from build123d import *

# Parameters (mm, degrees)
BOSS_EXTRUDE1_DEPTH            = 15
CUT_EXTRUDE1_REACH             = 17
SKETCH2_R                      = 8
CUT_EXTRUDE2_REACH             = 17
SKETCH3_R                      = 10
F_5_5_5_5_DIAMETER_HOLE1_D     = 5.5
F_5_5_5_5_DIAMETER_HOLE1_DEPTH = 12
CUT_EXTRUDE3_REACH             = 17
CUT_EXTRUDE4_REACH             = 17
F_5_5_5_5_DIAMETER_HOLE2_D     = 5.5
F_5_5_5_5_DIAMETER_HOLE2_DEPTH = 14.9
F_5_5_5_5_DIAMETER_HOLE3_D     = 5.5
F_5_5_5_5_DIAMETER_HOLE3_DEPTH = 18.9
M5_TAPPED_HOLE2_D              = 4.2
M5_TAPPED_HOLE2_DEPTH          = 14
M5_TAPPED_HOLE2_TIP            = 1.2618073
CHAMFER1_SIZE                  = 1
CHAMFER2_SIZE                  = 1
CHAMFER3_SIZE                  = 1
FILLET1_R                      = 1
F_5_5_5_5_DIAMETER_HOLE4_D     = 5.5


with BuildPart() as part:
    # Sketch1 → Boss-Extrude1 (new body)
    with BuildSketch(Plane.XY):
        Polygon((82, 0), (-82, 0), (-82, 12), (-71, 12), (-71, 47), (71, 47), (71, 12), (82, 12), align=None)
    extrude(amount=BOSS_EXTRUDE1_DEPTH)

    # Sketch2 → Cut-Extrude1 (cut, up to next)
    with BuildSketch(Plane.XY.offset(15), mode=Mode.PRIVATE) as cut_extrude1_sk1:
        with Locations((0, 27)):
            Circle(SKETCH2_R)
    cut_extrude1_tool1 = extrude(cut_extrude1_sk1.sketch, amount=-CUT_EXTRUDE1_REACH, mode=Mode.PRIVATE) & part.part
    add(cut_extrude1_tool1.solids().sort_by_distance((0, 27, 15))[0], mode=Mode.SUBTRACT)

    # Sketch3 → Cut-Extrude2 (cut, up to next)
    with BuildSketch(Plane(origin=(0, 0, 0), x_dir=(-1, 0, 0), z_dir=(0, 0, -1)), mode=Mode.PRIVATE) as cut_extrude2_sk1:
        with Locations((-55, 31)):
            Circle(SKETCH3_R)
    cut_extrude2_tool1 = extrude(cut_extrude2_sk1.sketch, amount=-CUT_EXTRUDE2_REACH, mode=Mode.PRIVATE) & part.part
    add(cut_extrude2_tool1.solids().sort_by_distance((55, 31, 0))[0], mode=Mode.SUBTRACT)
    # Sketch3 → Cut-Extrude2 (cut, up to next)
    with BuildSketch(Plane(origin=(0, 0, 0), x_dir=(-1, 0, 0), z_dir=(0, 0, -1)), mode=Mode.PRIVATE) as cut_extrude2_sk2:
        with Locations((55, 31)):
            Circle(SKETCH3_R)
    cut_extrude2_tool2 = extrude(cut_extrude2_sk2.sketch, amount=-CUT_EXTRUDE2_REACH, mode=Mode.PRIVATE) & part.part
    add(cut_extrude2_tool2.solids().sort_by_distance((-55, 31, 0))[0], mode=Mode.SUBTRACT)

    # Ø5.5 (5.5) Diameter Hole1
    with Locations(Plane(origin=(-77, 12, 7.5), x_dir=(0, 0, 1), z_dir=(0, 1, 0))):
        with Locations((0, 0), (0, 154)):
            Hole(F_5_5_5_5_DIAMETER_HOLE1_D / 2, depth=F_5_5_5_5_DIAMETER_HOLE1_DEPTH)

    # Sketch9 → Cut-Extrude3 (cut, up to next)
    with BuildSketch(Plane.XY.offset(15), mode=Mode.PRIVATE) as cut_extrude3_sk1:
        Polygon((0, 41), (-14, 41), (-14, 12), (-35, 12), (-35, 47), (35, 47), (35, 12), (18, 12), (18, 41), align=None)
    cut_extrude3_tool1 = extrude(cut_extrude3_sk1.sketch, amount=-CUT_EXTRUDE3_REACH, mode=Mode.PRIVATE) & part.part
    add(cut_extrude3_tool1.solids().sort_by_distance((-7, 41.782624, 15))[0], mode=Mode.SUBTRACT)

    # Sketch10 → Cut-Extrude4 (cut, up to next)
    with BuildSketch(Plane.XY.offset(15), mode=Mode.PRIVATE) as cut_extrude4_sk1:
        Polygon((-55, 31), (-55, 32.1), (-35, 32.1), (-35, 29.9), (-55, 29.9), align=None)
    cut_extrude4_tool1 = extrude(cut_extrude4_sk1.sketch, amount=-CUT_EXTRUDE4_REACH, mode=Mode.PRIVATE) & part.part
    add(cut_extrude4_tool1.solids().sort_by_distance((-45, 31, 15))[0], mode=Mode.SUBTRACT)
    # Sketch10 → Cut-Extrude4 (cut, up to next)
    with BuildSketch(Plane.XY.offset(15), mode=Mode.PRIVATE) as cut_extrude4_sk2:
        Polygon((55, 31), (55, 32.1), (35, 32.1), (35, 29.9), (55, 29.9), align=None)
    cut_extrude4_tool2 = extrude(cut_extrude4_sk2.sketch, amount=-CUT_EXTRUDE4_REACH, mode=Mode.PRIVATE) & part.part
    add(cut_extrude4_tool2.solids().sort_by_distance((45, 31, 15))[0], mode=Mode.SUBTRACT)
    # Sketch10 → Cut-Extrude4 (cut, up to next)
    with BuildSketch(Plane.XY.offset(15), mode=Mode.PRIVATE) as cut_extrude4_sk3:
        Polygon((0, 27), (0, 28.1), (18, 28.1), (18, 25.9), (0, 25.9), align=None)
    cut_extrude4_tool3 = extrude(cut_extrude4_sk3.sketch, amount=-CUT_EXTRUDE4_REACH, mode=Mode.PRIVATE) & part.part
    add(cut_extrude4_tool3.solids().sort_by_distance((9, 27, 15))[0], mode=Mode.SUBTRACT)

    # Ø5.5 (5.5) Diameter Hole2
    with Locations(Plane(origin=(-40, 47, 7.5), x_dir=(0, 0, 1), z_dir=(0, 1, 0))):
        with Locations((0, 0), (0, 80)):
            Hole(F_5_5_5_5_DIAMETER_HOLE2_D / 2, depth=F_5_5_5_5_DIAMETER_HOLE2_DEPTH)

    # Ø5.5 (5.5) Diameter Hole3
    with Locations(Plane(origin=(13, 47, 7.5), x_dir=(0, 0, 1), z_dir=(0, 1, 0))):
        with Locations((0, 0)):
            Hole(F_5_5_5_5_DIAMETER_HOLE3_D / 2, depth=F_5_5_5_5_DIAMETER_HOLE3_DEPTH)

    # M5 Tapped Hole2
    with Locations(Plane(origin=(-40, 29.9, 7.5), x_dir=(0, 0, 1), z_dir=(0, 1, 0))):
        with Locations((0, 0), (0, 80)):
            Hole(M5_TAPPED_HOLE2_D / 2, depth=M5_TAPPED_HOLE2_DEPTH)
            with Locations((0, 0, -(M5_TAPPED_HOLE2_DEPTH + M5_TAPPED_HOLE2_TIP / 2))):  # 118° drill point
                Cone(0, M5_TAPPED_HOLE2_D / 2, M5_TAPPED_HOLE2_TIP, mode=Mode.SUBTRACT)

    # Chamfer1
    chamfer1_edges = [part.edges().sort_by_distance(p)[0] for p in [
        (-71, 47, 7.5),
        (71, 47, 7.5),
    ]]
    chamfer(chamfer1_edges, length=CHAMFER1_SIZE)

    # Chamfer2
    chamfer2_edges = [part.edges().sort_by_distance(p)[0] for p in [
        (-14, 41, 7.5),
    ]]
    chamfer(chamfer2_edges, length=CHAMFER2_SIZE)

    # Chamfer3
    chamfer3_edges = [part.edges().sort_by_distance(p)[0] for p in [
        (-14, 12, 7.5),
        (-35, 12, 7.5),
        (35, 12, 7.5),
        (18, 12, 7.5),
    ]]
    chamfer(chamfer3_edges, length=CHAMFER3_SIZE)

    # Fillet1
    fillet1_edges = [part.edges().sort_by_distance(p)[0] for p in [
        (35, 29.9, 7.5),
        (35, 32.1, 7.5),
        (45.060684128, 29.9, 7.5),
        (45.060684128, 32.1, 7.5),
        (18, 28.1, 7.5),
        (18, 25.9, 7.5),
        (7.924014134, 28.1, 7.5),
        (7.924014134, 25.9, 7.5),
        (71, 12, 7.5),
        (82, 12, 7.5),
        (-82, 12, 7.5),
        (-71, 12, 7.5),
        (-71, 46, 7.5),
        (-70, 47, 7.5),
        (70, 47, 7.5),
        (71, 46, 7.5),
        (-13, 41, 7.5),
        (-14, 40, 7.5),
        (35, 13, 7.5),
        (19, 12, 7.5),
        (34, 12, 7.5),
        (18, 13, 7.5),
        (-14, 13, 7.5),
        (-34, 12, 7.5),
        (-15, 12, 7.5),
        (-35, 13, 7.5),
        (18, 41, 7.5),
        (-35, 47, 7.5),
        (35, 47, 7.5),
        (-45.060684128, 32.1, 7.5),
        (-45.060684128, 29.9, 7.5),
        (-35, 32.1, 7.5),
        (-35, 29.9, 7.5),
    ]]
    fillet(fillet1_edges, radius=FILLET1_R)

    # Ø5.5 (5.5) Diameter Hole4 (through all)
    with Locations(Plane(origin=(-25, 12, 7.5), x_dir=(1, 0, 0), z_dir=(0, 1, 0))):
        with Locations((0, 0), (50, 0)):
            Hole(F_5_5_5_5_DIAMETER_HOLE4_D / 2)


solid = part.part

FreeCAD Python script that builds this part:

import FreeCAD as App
import Part
import Sketcher
from FreeCAD import Vector


def edges_at(feature, points):
    """Names of the edges that pass closest to the given points."""
    edges = feature.Shape.Edges
    near = lambda p: min(range(len(edges)), key=lambda i: edges[i].distToShape(Part.Vertex(*p))[0])
    return sorted({f"Edge{near(p) + 1}" for p in points})

doc = App.newDocument("Part")
body = doc.addObject("PartDesign::Body", "Body")

# Sketch on XY plane
sketch1 = body.newObject("Sketcher::SketchObject", "Sketch")
sketch1.AttachmentSupport = (doc.getObject("XY_Plane"), [""])
sketch1.MapMode = "FlatFace"
sketch1.addGeometry([
    Part.LineSegment(Vector(-82, 0, 0), Vector(82, 0, 0)),  # 0
    Part.LineSegment(Vector(82, 0, 0), Vector(82, 12, 0)),  # 1
    Part.LineSegment(Vector(82, 12, 0), Vector(71, 12, 0)),  # 2
    Part.LineSegment(Vector(71, 12, 0), Vector(71, 47, 0)),  # 3
    Part.LineSegment(Vector(71, 47, 0), Vector(-71, 47, 0)),  # 4
    Part.LineSegment(Vector(-71, 47, 0), Vector(-71, 12, 0)),  # 5
    Part.LineSegment(Vector(-71, 12, 0), Vector(-82, 12, 0)),  # 6
    Part.LineSegment(Vector(-82, 12, 0), Vector(-82, 0, 0)),  # 7
], False)
sketch1.addConstraint([
    Sketcher.Constraint("Coincident", 0, 2, 1, 1),
    Sketcher.Constraint("Coincident", 1, 2, 2, 1),
    Sketcher.Constraint("Coincident", 2, 2, 3, 1),
    Sketcher.Constraint("Coincident", 3, 2, 4, 1),
    Sketcher.Constraint("Coincident", 4, 2, 5, 1),
    Sketcher.Constraint("Coincident", 5, 2, 6, 1),
    Sketcher.Constraint("Coincident", 6, 2, 7, 1),
    Sketcher.Constraint("Coincident", 7, 2, 0, 1),
    Sketcher.Constraint("Horizontal", 0),
    Sketcher.Constraint("Vertical", 1),
    Sketcher.Constraint("Horizontal", 2),
    Sketcher.Constraint("Vertical", 3),
    Sketcher.Constraint("Horizontal", 4),
    Sketcher.Constraint("Vertical", 5),
    Sketcher.Constraint("Horizontal", 6),
    Sketcher.Constraint("Vertical", 7),
    Sketcher.Constraint("Symmetric", 0, 2, 7, 2, -1, 1),
    Sketcher.Constraint("Symmetric", 2, 2, 5, 2, -2),
    Sketcher.Constraint("DistanceX", 0, 1, 0, 2, 164.0),
    Sketcher.Constraint("DistanceX", 2, 2, 2, 1, 11.0),
    Sketcher.Constraint("DistanceY", 1, 1, 1, 2, 12.0),
    Sketcher.Constraint("DistanceY", 3, 1, 3, 2, 35.0),
])
pad1 = body.newObject("PartDesign::Pad", "Pad")
pad1.Profile = sketch1
pad1.Length = 15

# Sketch on XY plane
sketch2 = body.newObject("Sketcher::SketchObject", "Sketch001")
sketch2.AttachmentSupport = (doc.getObject("XY_Plane"), [""])
sketch2.MapMode = "FlatFace"
sketch2.AttachmentOffset = App.Placement(Vector(0, 0, 15), App.Rotation())
sketch2.addGeometry(Part.Circle(Vector(0, 27, 0), Vector(0, 0, 1), 8), False)
sketch2.addConstraint([
    Sketcher.Constraint("PointOnObject", 0, 3, -2),
    Sketcher.Constraint("Diameter", 0, 16.0),
    Sketcher.Constraint("DistanceY", -1, 1, 0, 3, 27.0),
])
pocket1 = body.newObject("PartDesign::Pocket", "Pocket")
pocket1.Profile = sketch2
pocket1.Type = "UpToFirst"

# Sketch on XY plane
sketch3 = body.newObject("Sketcher::SketchObject", "Sketch002")
sketch3.AttachmentSupport = (doc.getObject("XY_Plane"), [""])
sketch3.MapMode = "FlatFace"
sketch3.addGeometry(Part.Circle(Vector(55, 31, 0), Vector(0, 0, 1), 10), False)
sketch3.addConstraint([
    Sketcher.Constraint("Diameter", 0, 20.0),
    Sketcher.Constraint("DistanceX", -1, 1, 0, 3, 55.0),
    Sketcher.Constraint("DistanceY", -1, 1, 0, 3, 31.0),
])
pocket2 = body.newObject("PartDesign::Pocket", "Pocket001")
pocket2.Profile = sketch3
pocket2.Type = "UpToFirst"
pocket2.Reversed = True

# Sketch on XY plane
sketch4 = body.newObject("Sketcher::SketchObject", "Sketch003")
sketch4.AttachmentSupport = (doc.getObject("XY_Plane"), [""])
sketch4.MapMode = "FlatFace"
sketch4.addGeometry(Part.Circle(Vector(-55, 31, 0), Vector(0, 0, 1), 10), False)
sketch4.addConstraint([
    Sketcher.Constraint("Diameter", 0, 20.0),
    Sketcher.Constraint("DistanceX", 0, 3, -1, 1, 55.0),
    Sketcher.Constraint("DistanceY", -1, 1, 0, 3, 31.0),
])
pocket3 = body.newObject("PartDesign::Pocket", "Pocket002")
pocket3.Profile = sketch4
pocket3.Type = "UpToFirst"
pocket3.Reversed = True

# Sketch on XZ plane
sketch5 = body.newObject("Sketcher::SketchObject", "Sketch004")
sketch5.AttachmentSupport = (doc.getObject("XZ_Plane"), [""])
sketch5.MapMode = "FlatFace"
sketch5.AttachmentOffset = App.Placement(Vector(0, 0, -12), App.Rotation())
sketch5.addGeometry([
    Part.Circle(Vector(-77, 7.5, 0), Vector(0, 0, 1), 2.8),
    Part.Circle(Vector(77, 7.5, 0), Vector(0, 0, 1), 2.8),
], False)
sketch5.addConstraint([
    Sketcher.Constraint("Equal", 0, 1),
    Sketcher.Constraint("Symmetric", 0, 3, 1, 3, -2),
    Sketcher.Constraint("Diameter", 0, 5.5),
    Sketcher.Constraint("DistanceX", 0, 3, -1, 1, 77.0),
    Sketcher.Constraint("DistanceY", -1, 1, 0, 3, 7.5),
])
doc.recompute()
hole = body.newObject("PartDesign::Hole", "Hole")
hole.Profile = sketch5
hole.ThreadType = "None"
hole.Diameter = 5.5
hole.DepthType = "Dimension"
hole.Depth = 12
hole.DrillPoint = "Flat"
hole.Reversed = True

# Sketch on XY plane
sketch6 = body.newObject("Sketcher::SketchObject", "Sketch005")
sketch6.AttachmentSupport = (doc.getObject("XY_Plane"), [""])
sketch6.MapMode = "FlatFace"
sketch6.AttachmentOffset = App.Placement(Vector(0, 0, 15), App.Rotation())
sketch6.addGeometry([
    Part.LineSegment(Vector(-14, 41, 0), Vector(18, 41, 0)),  # 0
    Part.LineSegment(Vector(18, 41, 0), Vector(18, 12, 0)),  # 1
    Part.LineSegment(Vector(18, 12, 0), Vector(35, 12, 0)),  # 2
    Part.LineSegment(Vector(35, 12, 0), Vector(35, 47, 0)),  # 3
    Part.LineSegment(Vector(35, 47, 0), Vector(-35, 47, 0)),  # 4
    Part.LineSegment(Vector(-35, 47, 0), Vector(-35, 12, 0)),  # 5
    Part.LineSegment(Vector(-35, 12, 0), Vector(-14, 12, 0)),  # 6
    Part.LineSegment(Vector(-14, 12, 0), Vector(-14, 41, 0)),  # 7
], False)
sketch6.addConstraint([
    Sketcher.Constraint("Coincident", 0, 2, 1, 1),
    Sketcher.Constraint("Coincident", 1, 2, 2, 1),
    Sketcher.Constraint("Coincident", 2, 2, 3, 1),
    Sketcher.Constraint("Coincident", 3, 2, 4, 1),
    Sketcher.Constraint("Coincident", 4, 2, 5, 1),
    Sketcher.Constraint("Coincident", 5, 2, 6, 1),
    Sketcher.Constraint("Coincident", 6, 2, 7, 1),
    Sketcher.Constraint("Coincident", 7, 2, 0, 1),
    Sketcher.Constraint("Horizontal", 0),
    Sketcher.Constraint("Vertical", 1),
    Sketcher.Constraint("Horizontal", 2),
    Sketcher.Constraint("Vertical", 3),
    Sketcher.Constraint("Horizontal", 4),
    Sketcher.Constraint("Vertical", 5),
    Sketcher.Constraint("Horizontal", 6),
    Sketcher.Constraint("Vertical", 7),
    Sketcher.Constraint("Symmetric", 2, 2, 5, 2, -2),
    Sketcher.Constraint("DistanceX", 0, 1, 0, 2, 32.0),
    Sketcher.Constraint("DistanceX", 2, 1, 2, 2, 17.0),
    Sketcher.Constraint("DistanceX", 4, 2, 4, 1, 70.0),
    Sketcher.Constraint("DistanceY", 1, 2, 1, 1, 29.0),
    Sketcher.Constraint("DistanceY", 3, 1, 3, 2, 35.0),
    Sketcher.Constraint("DistanceY", -1, 1, 0, 2, 41.0),
])
pocket4 = body.newObject("PartDesign::Pocket", "Pocket003")
pocket4.Profile = sketch6
pocket4.Length = 15

# Sketch on XY plane
sketch7 = body.newObject("Sketcher::SketchObject", "Sketch006")
sketch7.AttachmentSupport = (doc.getObject("XY_Plane"), [""])
sketch7.MapMode = "FlatFace"
sketch7.AttachmentOffset = App.Placement(Vector(0, 0, 15), App.Rotation())
sketch7.addGeometry([
    Part.LineSegment(Vector(-55, 32.1, 0), Vector(-55, 29.9, 0)),
    Part.LineSegment(Vector(-55, 29.9, 0), Vector(-35, 29.9, 0)),
    Part.LineSegment(Vector(-35, 29.9, 0), Vector(-35, 32.1, 0)),
    Part.LineSegment(Vector(-35, 32.1, 0), Vector(-55, 32.1, 0)),
], False)
sketch7.addConstraint([
    Sketcher.Constraint("Coincident", 0, 2, 1, 1),
    Sketcher.Constraint("Coincident", 1, 2, 2, 1),
    Sketcher.Constraint("Coincident", 2, 2, 3, 1),
    Sketcher.Constraint("Coincident", 3, 2, 0, 1),
    Sketcher.Constraint("Vertical", 0),
    Sketcher.Constraint("Horizontal", 1),
    Sketcher.Constraint("Vertical", 2),
    Sketcher.Constraint("Horizontal", 3),
    Sketcher.Constraint("DistanceX", 1, 1, 1, 2, 20.0),
    Sketcher.Constraint("DistanceY", 0, 2, 0, 1, 2.2),
    Sketcher.Constraint("DistanceX", 0, 2, -1, 1, 55.0),
    Sketcher.Constraint("DistanceY", -1, 1, 0, 2, 29.9),
])
pocket5 = body.newObject("PartDesign::Pocket", "Pocket004")
pocket5.Profile = sketch7
pocket5.Type = "UpToFirst"

# Sketch on XY plane
sketch8 = body.newObject("Sketcher::SketchObject", "Sketch007")
sketch8.AttachmentSupport = (doc.getObject("XY_Plane"), [""])
sketch8.MapMode = "FlatFace"
sketch8.AttachmentOffset = App.Placement(Vector(0, 0, 15), App.Rotation())
sketch8.addGeometry([
    Part.LineSegment(Vector(55, 32.1, 0), Vector(35, 32.1, 0)),
    Part.LineSegment(Vector(35, 32.1, 0), Vector(35, 29.9, 0)),
    Part.LineSegment(Vector(35, 29.9, 0), Vector(55, 29.9, 0)),
    Part.LineSegment(Vector(55, 29.9, 0), Vector(55, 32.1, 0)),
], False)
sketch8.addConstraint([
    Sketcher.Constraint("Coincident", 0, 2, 1, 1),
    Sketcher.Constraint("Coincident", 1, 2, 2, 1),
    Sketcher.Constraint("Coincident", 2, 2, 3, 1),
    Sketcher.Constraint("Coincident", 3, 2, 0, 1),
    Sketcher.Constraint("Horizontal", 0),
    Sketcher.Constraint("Vertical", 1),
    Sketcher.Constraint("Horizontal", 2),
    Sketcher.Constraint("Vertical", 3),
    Sketcher.Constraint("DistanceX", 0, 2, 0, 1, 20.0),
    Sketcher.Constraint("DistanceY", 1, 2, 1, 1, 2.2),
    Sketcher.Constraint("DistanceX", -1, 1, 0, 2, 35.0),
    Sketcher.Constraint("DistanceY", -1, 1, 0, 2, 32.1),
])
pocket6 = body.newObject("PartDesign::Pocket", "Pocket005")
pocket6.Profile = sketch8
pocket6.Type = "UpToFirst"

# Sketch on XY plane
sketch9 = body.newObject("Sketcher::SketchObject", "Sketch008")
sketch9.AttachmentSupport = (doc.getObject("XY_Plane"), [""])
sketch9.MapMode = "FlatFace"
sketch9.AttachmentOffset = App.Placement(Vector(0, 0, 15), App.Rotation())
sketch9.addGeometry([
    Part.LineSegment(Vector(0, 28.1, 0), Vector(0, 25.9, 0)),
    Part.LineSegment(Vector(0, 25.9, 0), Vector(18, 25.9, 0)),
    Part.LineSegment(Vector(18, 25.9, 0), Vector(18, 28.1, 0)),
    Part.LineSegment(Vector(18, 28.1, 0), Vector(0, 28.1, 0)),
], False)
sketch9.addConstraint([
    Sketcher.Constraint("Coincident", 0, 2, 1, 1),
    Sketcher.Constraint("Coincident", 1, 2, 2, 1),
    Sketcher.Constraint("Coincident", 2, 2, 3, 1),
    Sketcher.Constraint("Coincident", 3, 2, 0, 1),
    Sketcher.Constraint("Vertical", 0),
    Sketcher.Constraint("Horizontal", 1),
    Sketcher.Constraint("Vertical", 2),
    Sketcher.Constraint("Horizontal", 3),
    Sketcher.Constraint("PointOnObject", 0, 2, -2),
    Sketcher.Constraint("DistanceX", 1, 1, 1, 2, 18.0),
    Sketcher.Constraint("DistanceY", 0, 2, 0, 1, 2.2),
    Sketcher.Constraint("DistanceY", -1, 1, 0, 2, 25.9),
])
pocket7 = body.newObject("PartDesign::Pocket", "Pocket006")
pocket7.Profile = sketch9
pocket7.Type = "UpToFirst"

# Sketch on XZ plane
sketch10 = body.newObject("Sketcher::SketchObject", "Sketch009")
sketch10.AttachmentSupport = (doc.getObject("XZ_Plane"), [""])
sketch10.MapMode = "FlatFace"
sketch10.AttachmentOffset = App.Placement(Vector(0, 0, -47), App.Rotation())
sketch10.addGeometry([
    Part.Circle(Vector(-40, 7.5, 0), Vector(0, 0, 1), 2.8),
    Part.Circle(Vector(40, 7.5, 0), Vector(0, 0, 1), 2.8),
], False)
sketch10.addConstraint([
    Sketcher.Constraint("Equal", 0, 1),
    Sketcher.Constraint("Symmetric", 0, 3, 1, 3, -2),
    Sketcher.Constraint("Diameter", 0, 5.5),
    Sketcher.Constraint("DistanceX", 0, 3, -1, 1, 40.0),
    Sketcher.Constraint("DistanceY", -1, 1, 0, 3, 7.5),
])
doc.recompute()
hole2 = body.newObject("PartDesign::Hole", "Hole001")
hole2.Profile = sketch10
hole2.ThreadType = "None"
hole2.Diameter = 5.5
hole2.DepthType = "Dimension"
hole2.Depth = 14.9
hole2.DrillPoint = "Flat"
hole2.Reversed = True

# Sketch on XZ plane
sketch11 = body.newObject("Sketcher::SketchObject", "Sketch010")
sketch11.AttachmentSupport = (doc.getObject("XZ_Plane"), [""])
sketch11.MapMode = "FlatFace"
sketch11.AttachmentOffset = App.Placement(Vector(0, 0, -47), App.Rotation())
sketch11.addGeometry(Part.Circle(Vector(13, 7.5, 0), Vector(0, 0, 1), 2.8), False)
sketch11.addConstraint([
    Sketcher.Constraint("Diameter", 0, 5.5),
    Sketcher.Constraint("DistanceX", -1, 1, 0, 3, 13.0),
    Sketcher.Constraint("DistanceY", -1, 1, 0, 3, 7.5),
])
doc.recompute()
hole3 = body.newObject("PartDesign::Hole", "Hole002")
hole3.Profile = sketch11
hole3.ThreadType = "None"
hole3.Diameter = 5.5
hole3.DepthType = "Dimension"
hole3.Depth = 18.9
hole3.DrillPoint = "Flat"
hole3.Reversed = True

# Sketch on XZ plane
sketch12 = body.newObject("Sketcher::SketchObject", "Sketch011")
sketch12.AttachmentSupport = (doc.getObject("XZ_Plane"), [""])
sketch12.MapMode = "FlatFace"
sketch12.AttachmentOffset = App.Placement(Vector(0, 0, -29.9), App.Rotation())
sketch12.addGeometry([
    Part.Circle(Vector(-40, 7.5, 0), Vector(0, 0, 1), 2.1),
    Part.Circle(Vector(40, 7.5, 0), Vector(0, 0, 1), 2.1),
], False)
sketch12.addConstraint([
    Sketcher.Constraint("Equal", 0, 1),
    Sketcher.Constraint("Symmetric", 0, 3, 1, 3, -2),
    Sketcher.Constraint("Diameter", 0, 4.2),
    Sketcher.Constraint("DistanceX", 0, 3, -1, 1, 40.0),
    Sketcher.Constraint("DistanceY", -1, 1, 0, 3, 7.5),
])
doc.recompute()
hole4 = body.newObject("PartDesign::Hole", "Hole003")
hole4.Profile = sketch12
hole4.ThreadType = "None"
hole4.Diameter = 4.2
hole4.DepthType = "Dimension"
hole4.Depth = 14
hole4.DrillPoint = "Angled"
hole4.DrillPointAngle = 118
hole4.Reversed = True
doc.recompute()

chamfer = body.newObject("PartDesign::Chamfer", "Chamfer")
chamfer.Base = (hole4, edges_at(hole4, [(-71, 47, 7.5), (71, 47, 7.5)]))
chamfer.Size = 1
doc.recompute()

chamfer2 = body.newObject("PartDesign::Chamfer", "Chamfer001")
chamfer2.Base = (chamfer, edges_at(chamfer, [(-14, 41, 7.5)]))
chamfer2.Size = 1
doc.recompute()

chamfer3 = body.newObject("PartDesign::Chamfer", "Chamfer002")
chamfer3.Base = (chamfer2, edges_at(chamfer2, [
    (-14, 12, 7.5),
    (-35, 12, 7.5),
    (35, 12, 7.5),
    (18, 12, 7.5),
]))
chamfer3.Size = 1
doc.recompute()

fillet = body.newObject("PartDesign::Fillet", "Fillet")
fillet.Base = (chamfer3, edges_at(chamfer3, [
    (35, 29.9, 7.5),
    (35, 32.1, 7.5),
    (45.061, 29.9, 7.5),
    (45.061, 32.1, 7.5),
    (18, 28.1, 7.5),
    (18, 25.9, 7.5),
    (7.924, 28.1, 7.5),
    (7.924, 25.9, 7.5),
    (71, 12, 7.5),
    (82, 12, 7.5),
    (-82, 12, 7.5),
    (-71, 12, 7.5),
    (-71, 46, 7.5),
    (-70, 47, 7.5),
    (70, 47, 7.5),
    (71, 46, 7.5),
    (-13, 41, 7.5),
    (-14, 40, 7.5),
    (35, 13, 7.5),
    (19, 12, 7.5),
    (34, 12, 7.5),
    (18, 13, 7.5),
    (-14, 13, 7.5),
    (-34, 12, 7.5),
    (-15, 12, 7.5),
    (-35, 13, 7.5),
    (18, 41, 7.5),
    (-35, 47, 7.5),
    (35, 47, 7.5),
    (-45.061, 32.1, 7.5),
    (-45.061, 29.9, 7.5),
    (-35, 32.1, 7.5),
    (-35, 29.9, 7.5),
]))
fillet.Radius = 1

# Sketch on XZ plane
sketch13 = body.newObject("Sketcher::SketchObject", "Sketch012")
sketch13.AttachmentSupport = (doc.getObject("XZ_Plane"), [""])
sketch13.MapMode = "FlatFace"
sketch13.AttachmentOffset = App.Placement(Vector(0, 0, -12), App.Rotation())
sketch13.addGeometry([
    Part.Circle(Vector(-25, 7.5, 0), Vector(0, 0, 1), 2.8),
    Part.Circle(Vector(25, 7.5, 0), Vector(0, 0, 1), 2.8),
], False)
sketch13.addConstraint([
    Sketcher.Constraint("Equal", 0, 1),
    Sketcher.Constraint("Symmetric", 0, 3, 1, 3, -2),
    Sketcher.Constraint("Diameter", 0, 5.5),
    Sketcher.Constraint("DistanceX", 0, 3, -1, 1, 25.0),
    Sketcher.Constraint("DistanceY", -1, 1, 0, 3, 7.5),
])
doc.recompute()
hole5 = body.newObject("PartDesign::Hole", "Hole004")
hole5.Profile = sketch13
hole5.ThreadType = "None"
hole5.Diameter = 5.5
hole5.DepthType = "ThroughAll"
hole5.Reversed = True

doc.recompute()
